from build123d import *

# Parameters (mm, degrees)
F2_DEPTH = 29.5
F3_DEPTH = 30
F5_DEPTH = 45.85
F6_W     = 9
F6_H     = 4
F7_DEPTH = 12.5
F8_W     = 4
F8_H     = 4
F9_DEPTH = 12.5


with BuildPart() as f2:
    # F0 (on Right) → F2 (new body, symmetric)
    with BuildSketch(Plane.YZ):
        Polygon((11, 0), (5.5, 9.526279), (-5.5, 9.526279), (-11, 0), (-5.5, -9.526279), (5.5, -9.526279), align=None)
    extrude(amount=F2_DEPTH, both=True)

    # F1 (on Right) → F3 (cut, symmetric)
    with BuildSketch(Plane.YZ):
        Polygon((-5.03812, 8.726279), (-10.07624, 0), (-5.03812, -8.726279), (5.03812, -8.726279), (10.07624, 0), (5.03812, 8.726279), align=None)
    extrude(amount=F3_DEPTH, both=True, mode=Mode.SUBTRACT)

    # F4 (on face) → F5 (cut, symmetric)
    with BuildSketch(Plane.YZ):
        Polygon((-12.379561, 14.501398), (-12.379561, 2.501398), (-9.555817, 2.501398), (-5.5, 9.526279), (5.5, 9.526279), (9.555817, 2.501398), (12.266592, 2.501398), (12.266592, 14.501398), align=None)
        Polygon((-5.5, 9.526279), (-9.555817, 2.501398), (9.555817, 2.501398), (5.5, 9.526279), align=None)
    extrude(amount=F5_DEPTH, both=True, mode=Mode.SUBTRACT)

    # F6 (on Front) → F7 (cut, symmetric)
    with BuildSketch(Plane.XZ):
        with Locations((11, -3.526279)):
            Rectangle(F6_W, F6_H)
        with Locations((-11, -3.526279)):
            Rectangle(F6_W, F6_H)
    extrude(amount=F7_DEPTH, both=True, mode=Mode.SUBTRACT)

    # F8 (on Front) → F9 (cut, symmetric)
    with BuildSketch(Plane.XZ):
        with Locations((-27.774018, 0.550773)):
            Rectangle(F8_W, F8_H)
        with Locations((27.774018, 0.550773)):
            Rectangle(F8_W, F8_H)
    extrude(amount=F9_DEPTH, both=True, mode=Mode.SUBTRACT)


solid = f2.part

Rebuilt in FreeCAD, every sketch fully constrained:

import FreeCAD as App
import Part
import Sketcher
Q = App.Units.Quantity

doc = App.newDocument("Part")
params = doc.addObject("Spreadsheet::Sheet", "Params")
for row, (alias, value) in enumerate([
    ("sketch1_width", "11 mm"),
    ("sketch1_length", "11 mm"),
    ("pad1_length", "59 mm"),
    ("pocket1_length", "60 mm"),
    ("sketch3_height", "12 mm"),
    ("pocket2_length", "91.7 mm"),
    ("sketch4_width", "9 mm"),
    ("sketch4_height", "4 mm"),
    ("pocket3_length", "25 mm"),
    ("sketch5_width", "4 mm"),
    ("pocket4_length", "25 mm"),
], start=1):
    params.set(f"A{row}", alias)
    params.set(f"B{row}", "=" + value)
    params.setAlias(f"B{row}", alias)

body = doc.addObject("PartDesign::Body", "Body")

sketch1 = doc.addObject("Sketcher::SketchObject", "Sketch")
body.addObject(sketch1)
sketch1.AttachmentSupport = (doc.YZ_Plane, [""])
sketch1.MapMode = "FlatFace"
sketch1.addGeometry(Part.LineSegment(App.Vector(11, 0, 0), App.Vector(6, 10, 0)), False)
sketch1.addGeometry(Part.LineSegment(App.Vector(6, 10, 0), App.Vector(-6, 10, 0)), False)
sketch1.addGeometry(Part.LineSegment(App.Vector(-6, 10, 0), App.Vector(-11, 0, 0)), False)
sketch1.addGeometry(Part.LineSegment(App.Vector(-11, 0, 0), App.Vector(-6, -10, 0)), False)
sketch1.addGeometry(Part.LineSegment(App.Vector(-6, -10, 0), App.Vector(6, -10, 0)), False)
sketch1.addGeometry(Part.LineSegment(App.Vector(6, -10, 0), App.Vector(11, 0, 0)), False)
sketch1.addConstraint(Sketcher.Constraint("Coincident", 0, 2, 1, 1))
sketch1.addConstraint(Sketcher.Constraint("Coincident", 1, 2, 2, 1))
sketch1.addConstraint(Sketcher.Constraint("Coincident", 2, 2, 3, 1))
sketch1.addConstraint(Sketcher.Constraint("Coincident", 3, 2, 4, 1))
sketch1.addConstraint(Sketcher.Constraint("Coincident", 4, 2, 5, 1))
sketch1.addConstraint(Sketcher.Constraint("Coincident", 5, 2, 0, 1))
sketch1.addConstraint(Sketcher.Constraint("Horizontal", 1))
sketch1.addConstraint(Sketcher.Constraint("Horizontal", 4))
sketch1.addConstraint(Sketcher.Constraint("Symmetric", 0, 2, 3, 2, -1, 1))
sketch1.addConstraint(Sketcher.Constraint("Symmetric", 2, 2, 5, 2, -1, 1))
sketch1.addConstraint(Sketcher.Constraint("PointOnObject", 2, 2, -1))
sketch1.addConstraint(Sketcher.Constraint("Parallel", 2, 5))
sketch1.addConstraint(Sketcher.Constraint("Vertical", 1, 2, 3, 2))
sketch1.addConstraint(Sketcher.Constraint("DistanceX", 1, 2, 1, 1, 11.0))
sketch1.addConstraint(Sketcher.Constraint("Angle", 0, Q("120.000001 deg")))
sketch1.addConstraint(Sketcher.Constraint("Distance", 0, 11.0))
sketch1.setExpression("Constraints[13]", "Params.sketch1_width")
sketch1.setExpression("Constraints[15]", "Params.sketch1_length")
pad1 = doc.addObject("PartDesign::Pad", "Pad")
body.addObject(pad1)
pad1.Profile = sketch1
pad1.setExpression("Length", "Params.pad1_length")
pad1.Midplane = True

sketch2 = doc.addObject("Sketcher::SketchObject", "Sketch001")
body.addObject(sketch2)
sketch2.AttachmentSupport = (doc.YZ_Plane, [""])
sketch2.MapMode = "FlatFace"
sketch2.addGeometry(Part.LineSegment(App.Vector(-5, 9, 0), App.Vector(-10, 0, 0)), False)
sketch2.addGeometry(Part.LineSegment(App.Vector(-10, 0, 0), App.Vector(-5, -9, 0)), False)
sketch2.addGeometry(Part.LineSegment(App.Vector(-5, -9, 0), App.Vector(5, -9, 0)), False)
sketch2.addGeometry(Part.LineSegment(App.Vector(5, -9, 0), App.Vector(10, 0, 0)), False)
sketch2.addGeometry(Part.LineSegment(App.Vector(10, 0, 0), App.Vector(5, 9, 0)), False)
sketch2.addGeometry(Part.LineSegment(App.Vector(5, 9, 0), App.Vector(-5, 9, 0)), False)
sketch2.addConstraint(Sketcher.Constraint("Coincident", 0, 2, 1, 1))
sketch2.addConstraint(Sketcher.Constraint("Coincident", 1, 2, 2, 1))
sketch2.addConstraint(Sketcher.Constraint("Coincident", 2, 2, 3, 1))
sketch2.addConstraint(Sketcher.Constraint("Coincident", 3, 2, 4, 1))
sketch2.addConstraint(Sketcher.Constraint("Coincident", 4, 2, 5, 1))
sketch2.addConstraint(Sketcher.Constraint("Coincident", 5, 2, 0, 1))
sketch2.addConstraint(Sketcher.Constraint("Horizontal", 2))
sketch2.addConstraint(Sketcher.Constraint("Horizontal", 5))
sketch2.addConstraint(Sketcher.Constraint("Symmetric", 0, 2, 3, 2, -1, 1))
sketch2.addConstraint(Sketcher.Constraint("Symmetric", 1, 2, 4, 2, -1, 1))
sketch2.addConstraint(Sketcher.Constraint("PointOnObject", 0, 2, -1))
sketch2.addConstraint(Sketcher.Constraint("Parallel", 0, 3))
sketch2.addConstraint(Sketcher.Constraint("Vertical", 2, 2, 4, 2))
sketch2.addConstraint(Sketcher.Constraint("Angle", 0, Q("-120.000002 deg")))
sketch2.addConstraint(Sketcher.Constraint("DistanceX", 2, 1, 2, 2, 10.07624))
sketch2.addConstraint(Sketcher.Constraint("Distance", 0, 10.076239))
pocket1 = doc.addObject("PartDesign::Pocket", "Pocket")
body.addObject(pocket1)
pocket1.Profile = sketch2
pocket1.setExpression("Length", "Params.pocket1_length")
pocket1.Midplane = True

sketch3 = doc.addObject("Sketcher::SketchObject", "Sketch002")
body.addObject(sketch3)
sketch3.AttachmentSupport = (doc.YZ_Plane, [""])
sketch3.MapMode = "FlatFace"
sketch3.addGeometry(Part.LineSegment(App.Vector(-12, 15, 0), App.Vector(-12, 3, 0)), False)
sketch3.addGeometry(Part.LineSegment(App.Vector(-12, 3, 0), App.Vector(12, 3, 0)), False)
sketch3.addGeometry(Part.LineSegment(App.Vector(12, 3, 0), App.Vector(12, 15, 0)), False)
sketch3.addGeometry(Part.LineSegment(App.Vector(12, 15, 0), App.Vector(-12, 15, 0)), False)
sketch3.addConstraint(Sketcher.Constraint("Coincident", 0, 2, 1, 1))
sketch3.addConstraint(Sketcher.Constraint("Coincident", 1, 2, 2, 1))
sketch3.addConstraint(Sketcher.Constraint("Coincident", 2, 2, 3, 1))
sketch3.addConstraint(Sketcher.Constraint("Coincident", 3, 2, 0, 1))
sketch3.addConstraint(Sketcher.Constraint("Vertical", 0))
sketch3.addConstraint(Sketcher.Constraint("Horizontal", 1))
sketch3.addConstraint(Sketcher.Constraint("Vertical", 2))
sketch3.addConstraint(Sketcher.Constraint("Horizontal", 3))
sketch3.addConstraint(Sketcher.Constraint("DistanceY", 0, 2, 0, 1, 12.0))
sketch3.addConstraint(Sketcher.Constraint("DistanceY", -1, 1, 0, 2, 2.501398))
sketch3.addConstraint(Sketcher.Constraint("DistanceX", 1, 1, 1, 2, 24.646153))
sketch3.addConstraint(Sketcher.Constraint("DistanceX", 0, 2, -1, 1, 12.379561))
sketch3.setExpression("Constraints[8]", "Params.sketch3_height")
pocket2 = doc.addObject("PartDesign::Pocket", "Pocket001")
body.addObject(pocket2)
pocket2.Profile = sketch3
pocket2.setExpression("Length", "Params.pocket2_length")
pocket2.Midplane = True

sketch4 = doc.addObject("Sketcher::SketchObject", "Sketch003")
body.addObject(sketch4)
sketch4.AttachmentSupport = (doc.XZ_Plane, [""])
sketch4.MapMode = "FlatFace"
sketch4.addGeometry(Part.LineSegment(App.Vector(6.5, -1.5, 0), App.Vector(6.5, -5.5, 0)), False)
sketch4.addGeometry(Part.LineSegment(App.Vector(6.5, -5.5, 0), App.Vector(15.5, -5.5, 0)), False)
sketch4.addGeometry(Part.LineSegment(App.Vector(15.5, -5.5, 0), App.Vector(15.5, -1.5, 0)), False)
sketch4.addGeometry(Part.LineSegment(App.Vector(15.5, -1.5, 0), App.Vector(6.5, -1.5, 0)), False)
sketch4.addGeometry(Part.LineSegment(App.Vector(-15.5, -1.5, 0), App.Vector(-15.5, -5.5, 0)), False)
sketch4.addGeometry(Part.LineSegment(App.Vector(-15.5, -5.5, 0), App.Vector(-6.5, -5.5, 0)), False)
sketch4.addGeometry(Part.LineSegment(App.Vector(-6.5, -5.5, 0), App.Vector(-6.5, -1.5, 0)), False)
sketch4.addGeometry(Part.LineSegment(App.Vector(-6.5, -1.5, 0), App.Vector(-15.5, -1.5, 0)), False)
sketch4.addConstraint(Sketcher.Constraint("Coincident", 0, 2, 1, 1))
sketch4.addConstraint(Sketcher.Constraint("Coincident", 1, 2, 2, 1))
sketch4.addConstraint(Sketcher.Constraint("Coincident", 2, 2, 3, 1))
sketch4.addConstraint(Sketcher.Constraint("Coincident", 3, 2, 0, 1))
sketch4.addConstraint(Sketcher.Constraint("Coincident", 4, 2, 5, 1))
sketch4.addConstraint(Sketcher.Constraint("Coincident", 5, 2, 6, 1))
sketch4.addConstraint(Sketcher.Constraint("Coincident", 6, 2, 7, 1))
sketch4.addConstraint(Sketcher.Constraint("Coincident", 7, 2, 4, 1))
sketch4.addConstraint(Sketcher.Constraint("Vertical", 0))
sketch4.addConstraint(Sketcher.Constraint("Horizontal", 1))
sketch4.addConstraint(Sketcher.Constraint("Vertical", 2))
sketch4.addConstraint(Sketcher.Constraint("Horizontal", 3))
sketch4.addConstraint(Sketcher.Constraint("Vertical", 4))
sketch4.addConstraint(Sketcher.Constraint("Horizontal", 5))
sketch4.addConstraint(Sketcher.Constraint("Vertical", 6))
sketch4.addConstraint(Sketcher.Constraint("Horizontal", 7))
sketch4.addConstraint(Sketcher.Constraint("Symmetric", 1, 2, 4, 2, -2))
sketch4.addConstraint(Sketcher.Constraint("Symmetric", 3, 2, 6, 2, -2))
sketch4.addConstraint(Sketcher.Constraint("DistanceX", 1, 1, 1, 2, 9.0))
sketch4.addConstraint(Sketcher.Constraint("DistanceY", 0, 2, 0, 1, 4.0))
sketch4.addConstraint(Sketcher.Constraint("DistanceX", 4, 2, 0, 2, 22.0))
sketch4.addConstraint(Sketcher.Constraint("DistanceY", 0, 2, -1, 1, 5.526279))
sketch4.setExpression("Constraints[18]", "Params.sketch4_width")
sketch4.setExpression("Constraints[19]", "Params.sketch4_height")
pocket3 = doc.addObject("PartDesign::Pocket", "Pocket002")
body.addObject(pocket3)
pocket3.Profile = sketch4
pocket3.setExpression("Length", "Params.pocket3_length")
pocket3.Midplane = True

sketch5 = doc.addObject("Sketcher::SketchObject", "Sketch004")
body.addObject(sketch5)
sketch5.AttachmentSupport = (doc.XZ_Plane, [""])
sketch5.MapMode = "FlatFace"
sketch5.addGeometry(Part.LineSegment(App.Vector(-29.8, 2.6, 0), App.Vector(-29.8, -1.4, 0)), False)
sketch5.addGeometry(Part.LineSegment(App.Vector(-29.8, -1.4, 0), App.Vector(-25.8, -1.4, 0)), False)
sketch5.addGeometry(Part.LineSegment(App.Vector(-25.8, -1.4, 0), App.Vector(-25.8, 2.6, 0)), False)
sketch5.addGeometry(Part.LineSegment(App.Vector(-25.8, 2.6, 0), App.Vector(-29.8, 2.6, 0)), False)
sketch5.addGeometry(Part.LineSegment(App.Vector(25.8, 2.6, 0), App.Vector(25.8, -1.4, 0)), False)
sketch5.addGeometry(Part.LineSegment(App.Vector(25.8, -1.4, 0), App.Vector(29.8, -1.4, 0)), False)
sketch5.addGeometry(Part.LineSegment(App.Vector(29.8, -1.4, 0), App.Vector(29.8, 2.6, 0)), False)
sketch5.addGeometry(Part.LineSegment(App.Vector(29.8, 2.6, 0), App.Vector(25.8, 2.6, 0)), False)
sketch5.addConstraint(Sketcher.Constraint("Coincident", 0, 2, 1, 1))
sketch5.addConstraint(Sketcher.Constraint("Coincident", 1, 2, 2, 1))
sketch5.addConstraint(Sketcher.Constraint("Coincident", 2, 2, 3, 1))
sketch5.addConstraint(Sketcher.Constraint("Coincident", 3, 2, 0, 1))
sketch5.addConstraint(Sketcher.Constraint("Coincident", 4, 2, 5, 1))
sketch5.addConstraint(Sketcher.Constraint("Coincident", 5, 2, 6, 1))
sketch5.addConstraint(Sketcher.Constraint("Coincident", 6, 2, 7, 1))
sketch5.addConstraint(Sketcher.Constraint("Coincident", 7, 2, 4, 1))
sketch5.addConstraint(Sketcher.Constraint("Vertical", 0))
sketch5.addConstraint(Sketcher.Constraint("Horizontal", 1))
sketch5.addConstraint(Sketcher.Constraint("Vertical", 2))
sketch5.addConstraint(Sketcher.Constraint("Horizontal", 3))
sketch5.addConstraint(Sketcher.Constraint("Vertical", 4))
sketch5.addConstraint(Sketcher.Constraint("Horizontal", 5))
sketch5.addConstraint(Sketcher.Constraint("Vertical", 6))
sketch5.addConstraint(Sketcher.Constraint("Horizontal", 7))
sketch5.addConstraint(Sketcher.Constraint("Symmetric", 1, 2, 4, 2, -2))
sketch5.addConstraint(Sketcher.Constraint("Symmetric", 3, 2, 6, 2, -2))
sketch5.addConstraint(Sketcher.Constraint("Equal", 7, 0))
sketch5.addConstraint(Sketcher.Constraint("DistanceX", 1, 1, 1, 2, 4.0))
sketch5.addConstraint(Sketcher.Constraint("DistanceX", 0, 2, -1, 1, 29.774018))
sketch5.addConstraint(Sketcher.Constraint("DistanceY", 0, 2, -1, 1, 1.449227))
sketch5.setExpression("Constraints[19]", "Params.sketch5_width")
pocket4 = doc.addObject("PartDesign::Pocket", "Pocket003")
body.addObject(pocket4)
pocket4.Profile = sketch5
pocket4.setExpression("Length", "Params.pocket4_length")
pocket4.Midplane = True

doc.recompute()
